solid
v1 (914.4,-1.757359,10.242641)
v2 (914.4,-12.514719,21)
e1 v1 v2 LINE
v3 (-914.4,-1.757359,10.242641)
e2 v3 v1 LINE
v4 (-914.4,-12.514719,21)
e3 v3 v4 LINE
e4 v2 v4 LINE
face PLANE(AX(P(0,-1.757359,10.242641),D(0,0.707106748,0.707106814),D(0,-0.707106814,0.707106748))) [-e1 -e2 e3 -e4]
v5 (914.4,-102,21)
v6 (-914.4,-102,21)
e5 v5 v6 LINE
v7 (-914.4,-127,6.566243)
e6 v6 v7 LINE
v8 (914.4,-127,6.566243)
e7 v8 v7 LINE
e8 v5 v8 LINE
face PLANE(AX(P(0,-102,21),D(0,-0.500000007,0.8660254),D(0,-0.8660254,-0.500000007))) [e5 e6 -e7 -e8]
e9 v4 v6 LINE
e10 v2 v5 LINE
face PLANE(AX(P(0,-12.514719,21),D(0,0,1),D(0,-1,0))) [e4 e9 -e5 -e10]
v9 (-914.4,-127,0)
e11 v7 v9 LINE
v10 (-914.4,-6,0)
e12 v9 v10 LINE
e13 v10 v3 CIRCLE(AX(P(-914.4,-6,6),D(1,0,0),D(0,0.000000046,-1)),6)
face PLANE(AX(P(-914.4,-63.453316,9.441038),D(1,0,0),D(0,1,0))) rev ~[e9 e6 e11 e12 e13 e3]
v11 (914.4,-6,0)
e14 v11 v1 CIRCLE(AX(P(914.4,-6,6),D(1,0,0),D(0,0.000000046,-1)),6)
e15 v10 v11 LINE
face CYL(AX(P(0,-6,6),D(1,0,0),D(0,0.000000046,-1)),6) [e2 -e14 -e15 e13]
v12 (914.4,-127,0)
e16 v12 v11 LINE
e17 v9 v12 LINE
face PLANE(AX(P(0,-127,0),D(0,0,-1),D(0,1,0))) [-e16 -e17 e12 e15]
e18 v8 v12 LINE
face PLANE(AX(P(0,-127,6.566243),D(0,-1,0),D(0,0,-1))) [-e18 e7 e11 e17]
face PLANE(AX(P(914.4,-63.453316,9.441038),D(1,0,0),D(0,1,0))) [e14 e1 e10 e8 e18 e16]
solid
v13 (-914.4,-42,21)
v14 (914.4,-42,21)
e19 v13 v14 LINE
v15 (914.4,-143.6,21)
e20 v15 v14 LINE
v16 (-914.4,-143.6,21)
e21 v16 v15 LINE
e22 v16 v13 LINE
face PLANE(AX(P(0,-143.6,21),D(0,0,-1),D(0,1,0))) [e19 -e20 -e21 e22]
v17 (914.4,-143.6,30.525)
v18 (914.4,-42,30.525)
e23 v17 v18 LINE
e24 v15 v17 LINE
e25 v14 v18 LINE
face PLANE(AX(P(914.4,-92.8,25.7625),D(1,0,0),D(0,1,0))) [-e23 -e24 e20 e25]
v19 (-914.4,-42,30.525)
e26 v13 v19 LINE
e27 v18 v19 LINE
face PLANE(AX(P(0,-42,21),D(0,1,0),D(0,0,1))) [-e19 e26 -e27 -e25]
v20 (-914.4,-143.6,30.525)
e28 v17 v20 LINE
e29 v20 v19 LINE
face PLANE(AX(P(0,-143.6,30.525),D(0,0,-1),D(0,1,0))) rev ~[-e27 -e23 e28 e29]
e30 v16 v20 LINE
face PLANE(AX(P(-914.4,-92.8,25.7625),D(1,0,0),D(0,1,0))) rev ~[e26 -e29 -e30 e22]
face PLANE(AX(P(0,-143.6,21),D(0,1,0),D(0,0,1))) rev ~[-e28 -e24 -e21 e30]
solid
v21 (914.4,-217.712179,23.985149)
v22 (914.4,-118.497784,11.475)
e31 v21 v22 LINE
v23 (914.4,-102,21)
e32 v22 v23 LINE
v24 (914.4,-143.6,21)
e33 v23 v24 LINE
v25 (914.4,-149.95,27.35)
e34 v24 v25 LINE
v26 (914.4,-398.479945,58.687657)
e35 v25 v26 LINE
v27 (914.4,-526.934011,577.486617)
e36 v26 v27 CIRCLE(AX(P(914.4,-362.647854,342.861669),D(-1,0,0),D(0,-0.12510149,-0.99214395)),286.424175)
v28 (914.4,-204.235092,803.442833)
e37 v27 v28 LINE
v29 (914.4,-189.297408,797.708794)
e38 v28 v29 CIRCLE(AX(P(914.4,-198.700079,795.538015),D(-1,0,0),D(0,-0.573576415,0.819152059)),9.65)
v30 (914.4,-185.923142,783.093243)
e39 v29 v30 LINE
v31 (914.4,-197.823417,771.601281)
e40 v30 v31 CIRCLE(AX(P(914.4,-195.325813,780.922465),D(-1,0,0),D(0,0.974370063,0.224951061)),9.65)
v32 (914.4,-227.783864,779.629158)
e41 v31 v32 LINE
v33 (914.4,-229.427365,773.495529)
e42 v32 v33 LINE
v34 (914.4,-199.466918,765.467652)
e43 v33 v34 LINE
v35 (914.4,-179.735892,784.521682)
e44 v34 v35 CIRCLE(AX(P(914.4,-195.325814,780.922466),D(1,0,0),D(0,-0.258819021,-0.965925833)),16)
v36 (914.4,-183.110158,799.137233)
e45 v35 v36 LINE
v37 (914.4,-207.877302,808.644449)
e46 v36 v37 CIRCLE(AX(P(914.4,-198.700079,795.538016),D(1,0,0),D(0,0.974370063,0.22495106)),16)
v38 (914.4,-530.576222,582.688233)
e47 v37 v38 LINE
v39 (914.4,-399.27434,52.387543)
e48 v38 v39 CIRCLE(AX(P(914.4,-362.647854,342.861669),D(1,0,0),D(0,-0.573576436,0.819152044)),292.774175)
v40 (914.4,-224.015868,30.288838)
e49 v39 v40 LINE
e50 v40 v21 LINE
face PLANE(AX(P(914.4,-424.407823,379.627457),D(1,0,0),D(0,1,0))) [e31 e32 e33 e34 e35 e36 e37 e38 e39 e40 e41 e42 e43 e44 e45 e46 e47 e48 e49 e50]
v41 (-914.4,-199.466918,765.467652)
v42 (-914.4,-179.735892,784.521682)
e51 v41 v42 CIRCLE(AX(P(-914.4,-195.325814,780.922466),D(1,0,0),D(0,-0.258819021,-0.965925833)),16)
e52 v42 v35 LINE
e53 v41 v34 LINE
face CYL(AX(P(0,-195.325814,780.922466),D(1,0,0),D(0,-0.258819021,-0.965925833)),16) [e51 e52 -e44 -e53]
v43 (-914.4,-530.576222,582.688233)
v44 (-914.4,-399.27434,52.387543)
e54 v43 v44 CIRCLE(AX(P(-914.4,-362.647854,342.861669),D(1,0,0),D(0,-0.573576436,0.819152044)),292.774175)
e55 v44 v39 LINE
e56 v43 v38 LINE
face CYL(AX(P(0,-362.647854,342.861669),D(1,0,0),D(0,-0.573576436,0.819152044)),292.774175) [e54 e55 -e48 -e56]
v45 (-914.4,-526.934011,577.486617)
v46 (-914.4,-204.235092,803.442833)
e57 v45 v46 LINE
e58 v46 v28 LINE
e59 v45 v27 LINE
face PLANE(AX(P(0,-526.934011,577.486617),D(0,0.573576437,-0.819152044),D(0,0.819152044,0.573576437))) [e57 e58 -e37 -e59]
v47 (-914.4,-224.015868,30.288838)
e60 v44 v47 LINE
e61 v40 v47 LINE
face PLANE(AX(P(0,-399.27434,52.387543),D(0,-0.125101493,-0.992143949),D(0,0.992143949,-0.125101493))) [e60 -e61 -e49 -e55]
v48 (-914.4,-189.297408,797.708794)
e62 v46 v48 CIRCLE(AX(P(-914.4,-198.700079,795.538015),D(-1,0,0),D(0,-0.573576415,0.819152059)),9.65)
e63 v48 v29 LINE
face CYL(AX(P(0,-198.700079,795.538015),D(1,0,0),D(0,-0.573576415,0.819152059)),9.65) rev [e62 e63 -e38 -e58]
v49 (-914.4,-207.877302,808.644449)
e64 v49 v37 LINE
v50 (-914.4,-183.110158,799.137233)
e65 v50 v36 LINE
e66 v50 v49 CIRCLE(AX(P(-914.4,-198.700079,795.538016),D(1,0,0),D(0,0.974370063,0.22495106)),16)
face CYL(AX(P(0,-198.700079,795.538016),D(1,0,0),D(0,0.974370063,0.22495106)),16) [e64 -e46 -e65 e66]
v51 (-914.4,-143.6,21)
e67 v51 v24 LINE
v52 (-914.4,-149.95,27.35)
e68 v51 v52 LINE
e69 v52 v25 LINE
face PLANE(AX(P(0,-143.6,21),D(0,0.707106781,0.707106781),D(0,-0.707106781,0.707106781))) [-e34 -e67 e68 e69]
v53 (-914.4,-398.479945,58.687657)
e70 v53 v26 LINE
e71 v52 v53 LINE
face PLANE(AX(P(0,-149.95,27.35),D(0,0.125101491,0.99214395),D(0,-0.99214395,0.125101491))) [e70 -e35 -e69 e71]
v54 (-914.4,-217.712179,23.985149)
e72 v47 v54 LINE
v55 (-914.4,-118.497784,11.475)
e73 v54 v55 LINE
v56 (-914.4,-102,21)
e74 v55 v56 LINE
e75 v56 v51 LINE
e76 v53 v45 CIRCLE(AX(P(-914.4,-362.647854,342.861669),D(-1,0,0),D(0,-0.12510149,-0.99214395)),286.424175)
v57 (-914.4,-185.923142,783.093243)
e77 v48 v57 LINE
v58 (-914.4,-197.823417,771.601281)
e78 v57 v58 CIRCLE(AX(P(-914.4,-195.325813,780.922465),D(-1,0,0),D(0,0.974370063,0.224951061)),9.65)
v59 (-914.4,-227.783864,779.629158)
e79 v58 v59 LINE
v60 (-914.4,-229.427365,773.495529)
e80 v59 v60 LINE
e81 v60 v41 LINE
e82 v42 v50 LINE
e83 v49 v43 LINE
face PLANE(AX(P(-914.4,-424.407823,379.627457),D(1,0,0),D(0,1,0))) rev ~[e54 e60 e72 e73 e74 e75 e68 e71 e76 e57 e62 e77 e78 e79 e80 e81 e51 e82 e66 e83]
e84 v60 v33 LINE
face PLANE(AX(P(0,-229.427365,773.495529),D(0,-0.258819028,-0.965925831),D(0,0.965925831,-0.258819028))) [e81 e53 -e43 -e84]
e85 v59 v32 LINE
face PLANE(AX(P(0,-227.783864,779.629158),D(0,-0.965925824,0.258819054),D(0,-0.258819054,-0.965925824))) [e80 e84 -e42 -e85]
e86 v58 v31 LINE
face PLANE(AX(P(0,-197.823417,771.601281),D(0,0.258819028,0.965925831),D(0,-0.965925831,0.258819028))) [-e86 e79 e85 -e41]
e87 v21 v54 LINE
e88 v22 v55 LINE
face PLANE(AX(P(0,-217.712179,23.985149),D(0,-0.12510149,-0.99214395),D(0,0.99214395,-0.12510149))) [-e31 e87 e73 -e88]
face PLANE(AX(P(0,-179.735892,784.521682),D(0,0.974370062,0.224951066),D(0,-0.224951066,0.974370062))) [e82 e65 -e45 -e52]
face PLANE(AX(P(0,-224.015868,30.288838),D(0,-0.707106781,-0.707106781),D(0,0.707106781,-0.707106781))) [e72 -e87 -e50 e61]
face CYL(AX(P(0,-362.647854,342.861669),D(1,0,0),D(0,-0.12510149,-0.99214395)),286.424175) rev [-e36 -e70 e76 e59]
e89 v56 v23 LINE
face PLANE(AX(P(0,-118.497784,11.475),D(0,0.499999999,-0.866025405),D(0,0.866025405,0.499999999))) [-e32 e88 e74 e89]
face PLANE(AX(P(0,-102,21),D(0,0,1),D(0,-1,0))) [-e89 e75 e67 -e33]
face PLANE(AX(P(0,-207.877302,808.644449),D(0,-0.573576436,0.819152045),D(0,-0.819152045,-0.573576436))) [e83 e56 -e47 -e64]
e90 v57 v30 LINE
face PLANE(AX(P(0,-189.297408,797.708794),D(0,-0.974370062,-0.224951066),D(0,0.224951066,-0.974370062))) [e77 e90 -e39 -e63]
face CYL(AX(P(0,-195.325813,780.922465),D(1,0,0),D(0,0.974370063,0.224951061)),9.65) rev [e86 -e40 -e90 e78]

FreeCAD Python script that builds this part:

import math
import FreeCAD as App
import Part
import Sketcher
Q = App.Units.Quantity

doc = App.newDocument("Part")
params = doc.addObject("Spreadsheet::Sheet", "Params")
for row, (alias, value) in enumerate([
    ("sketch1_radius", "6 mm"),
    ("sketch1_width", "121 mm"),
    ("pad1_length", "1828.8 mm"),
    ("sketch2_width", "101.6 mm"),
    ("pad2_length", "1828.8 mm"),
    ("sketch3_radius", "16 mm"),
    ("sketch3_radius2", "9.65 mm"),
    ("sketch3_length", "15 mm"),
    ("sketch3_length2", "100 mm"),
    ("sketch3_width", "41.6 mm"),
    ("pad3_length", "1828.8 mm"),
], start=1):
    params.set(f"A{row}", alias)
    params.set(f"B{row}", "=" + value)
    params.setAlias(f"B{row}", alias)

body = doc.addObject("PartDesign::Body", "Body")

# Sketch on YZ plane
sketch1 = body.newObject("Sketcher::SketchObject", "Sketch")
sketch1.AttachmentSupport = (doc.getObject("YZ_Plane"), [""])
sketch1.MapMode = "FlatFace"
sketch1.addGeometry(Part.LineSegment(App.Vector(-127, 7, 0), App.Vector(-127, 0, 0)), False)
sketch1.addGeometry(Part.LineSegment(App.Vector(-127, 0, 0), App.Vector(-6, 0, 0)), False)
sketch1.addGeometry(Part.ArcOfCircle(Part.Circle(App.Vector(-6, 6, 0), App.Vector(0, 0, 1), 6), math.radians(-90), math.radians(45)), False)
sketch1.addGeometry(Part.LineSegment(App.Vector(-2, 10, 0), App.Vector(-13, 21, 0)), False)
sketch1.addGeometry(Part.LineSegment(App.Vector(-13, 21, 0), App.Vector(-102, 21, 0)), False)
sketch1.addGeometry(Part.LineSegment(App.Vector(-102, 21, 0), App.Vector(-127, 7, 0)), False)
sketch1.addConstraint(Sketcher.Constraint("Coincident", 0, 2, 1, 1))
sketch1.addConstraint(Sketcher.Constraint("Tangent", 1, 2, 2, 1))
sketch1.addConstraint(Sketcher.Constraint("Tangent", 2, 2, 3, 1))
sketch1.addConstraint(Sketcher.Constraint("Coincident", 3, 2, 4, 1))
sketch1.addConstraint(Sketcher.Constraint("Coincident", 4, 2, 5, 1))
sketch1.addConstraint(Sketcher.Constraint("Coincident", 5, 2, 0, 1))
sketch1.addConstraint(Sketcher.Constraint("Vertical", 0))
sketch1.addConstraint(Sketcher.Constraint("Horizontal", 1))
sketch1.addConstraint(Sketcher.Constraint("Horizontal", 4))
sketch1.addConstraint(Sketcher.Constraint("PointOnObject", 0, 2, -1))
sketch1.addConstraint(Sketcher.Constraint("Radius", 2, Q("6 mm")))
sketch1.addConstraint(Sketcher.Constraint("DistanceX", 1, 1, 1, 2, Q("121 mm")))
sketch1.addConstraint(Sketcher.Constraint("Angle", 3, Q("135.000003 deg")))
sketch1.addConstraint(Sketcher.Constraint("Angle", 5, Q("-150 deg")))
sketch1.addConstraint(Sketcher.Constraint("DistanceX", 2, 3, -1, 1, Q("6 mm")))
sketch1.addConstraint(Sketcher.Constraint("DistanceY", -1, 1, 3, 2, Q("21 mm")))
sketch1.addConstraint(Sketcher.Constraint("DistanceX", 4, 2, -1, 1, Q("102 mm")))
sketch1.setExpression("Constraints[10]", "Params.sketch1_radius")
sketch1.setExpression("Constraints[11]", "Params.sketch1_width")
pad1 = body.newObject("PartDesign::Pad", "Pad")
pad1.Profile = sketch1
pad1.setExpression("Length", "Params.pad1_length")
pad1.Midplane = True
body2 = doc.addObject("PartDesign::Body", "Body001")

# Sketch on YZ plane
sketch2 = body2.newObject("Sketcher::SketchObject", "Sketch001")
sketch2.AttachmentSupport = (doc.getObject("YZ_Plane001"), [""])
sketch2.MapMode = "FlatFace"
sketch2.addGeometry(Part.LineSegment(App.Vector(-144, 31, 0), App.Vector(-144, 21, 0)), False)
sketch2.addGeometry(Part.LineSegment(App.Vector(-144, 21, 0), App.Vector(-42, 21, 0)), False)
sketch2.addGeometry(Part.LineSegment(App.Vector(-42, 21, 0), App.Vector(-42, 31, 0)), False)
sketch2.addGeometry(Part.LineSegment(App.Vector(-42, 31, 0), App.Vector(-144, 31, 0)), False)
sketch2.addConstraint(Sketcher.Constraint("Coincident", 0, 2, 1, 1))
sketch2.addConstraint(Sketcher.Constraint("Coincident", 1, 2, 2, 1))
sketch2.addConstraint(Sketcher.Constraint("Coincident", 2, 2, 3, 1))
sketch2.addConstraint(Sketcher.Constraint("Coincident", 3, 2, 0, 1))
sketch2.addConstraint(Sketcher.Constraint("Vertical", 0))
sketch2.addConstraint(Sketcher.Constraint("Horizontal", 1))
sketch2.addConstraint(Sketcher.Constraint("Vertical", 2))
sketch2.addConstraint(Sketcher.Constraint("Horizontal", 3))
sketch2.addConstraint(Sketcher.Constraint("DistanceX", 1, 1, 1, 2, Q("101.6 mm")))
sketch2.addConstraint(Sketcher.Constraint("DistanceY", -1, 1, 0, 2, Q("21 mm")))
sketch2.addConstraint(Sketcher.Constraint("DistanceX", 1, 2, -1, 1, Q("42 mm")))
sketch2.addConstraint(Sketcher.Constraint("DistanceY", 0, 2, 0, 1, Q("9.525 mm")))
sketch2.setExpression("Constraints[8]", "Params.sketch2_width")
pad2 = body2.newObject("PartDesign::Pad", "Pad001")
pad2.Profile = sketch2
pad2.setExpression("Length", "Params.pad2_length")
pad2.Midplane = True
body3 = doc.addObject("PartDesign::Body", "Body002")

# Sketch on YZ plane
sketch3 = body3.newObject("Sketcher::SketchObject", "Sketch002")
sketch3.AttachmentSupport = (doc.getObject("YZ_Plane002"), [""])
sketch3.MapMode = "FlatFace"
sketch3.addGeometry(Part.LineSegment(App.Vector(-118, 11, 0), App.Vector(-102, 21, 0)), False)
sketch3.addGeometry(Part.LineSegment(App.Vector(-102, 21, 0), App.Vector(-144, 21, 0)), False)
sketch3.addGeometry(Part.LineSegment(App.Vector(-144, 21, 0), App.Vector(-150, 27, 0)), False)
sketch3.addGeometry(Part.LineSegment(App.Vector(-150, 27, 0), App.Vector(-398, 59, 0)), False)
sketch3.addGeometry(Part.ArcOfCircle(Part.Circle(App.Vector(-363, 343, 0), App.Vector(0, 0, 1), 286), math.radians(125), math.radians(263)), False)
sketch3.addGeometry(Part.LineSegment(App.Vector(-527, 577, 0), App.Vector(-204, 803, 0)), False)
sketch3.addGeometry(Part.ArcOfCircle(Part.Circle(App.Vector(-199, 796, 0), App.Vector(0, 0, 1), 10), math.radians(13), math.radians(125)), False)
sketch3.addGeometry(Part.LineSegment(App.Vector(-189, 798, 0), App.Vector(-186, 783, 0)), False)
sketch3.addGeometry(Part.ArcOfCircle(Part.Circle(App.Vector(-195, 781, 0), App.Vector(0, 0, 1), 10), math.radians(-105), math.radians(13)), False)
sketch3.addGeometry(Part.LineSegment(App.Vector(-198, 772, 0), App.Vector(-228, 780, 0)), False)
sketch3.addGeometry(Part.LineSegment(App.Vector(-228, 780, 0), App.Vector(-229, 773, 0)), False)
sketch3.addGeometry(Part.LineSegment(App.Vector(-229, 773, 0), App.Vector(-199, 765, 0)), False)
sketch3.addGeometry(Part.ArcOfCircle(Part.Circle(App.Vector(-195, 781, 0), App.Vector(0, 0, 1), 16), math.radians(-105), math.radians(13)), False)
sketch3.addGeometry(Part.LineSegment(App.Vector(-180, 785, 0), App.Vector(-183, 799, 0)), False)
sketch3.addGeometry(Part.ArcOfCircle(Part.Circle(App.Vector(-199, 796, 0), App.Vector(0, 0, 1), 16), math.radians(13), math.radians(125)), False)
sketch3.addGeometry(Part.LineSegment(App.Vector(-208, 809, 0), App.Vector(-531, 583, 0)), False)
sketch3.addGeometry(Part.ArcOfCircle(Part.Circle(App.Vector(-363, 343, 0), App.Vector(0, 0, 1), 293), math.radians(125), math.radians(263)), False)
sketch3.addGeometry(Part.LineSegment(App.Vector(-399, 52, 0), App.Vector(-224, 30, 0)), False)
sketch3.addGeometry(Part.LineSegment(App.Vector(-224, 30, 0), App.Vector(-218, 24, 0)), False)
sketch3.addGeometry(Part.LineSegment(App.Vector(-218, 24, 0), App.Vector(-118, 11, 0)), False)
sketch3.addConstraint(Sketcher.Constraint("Coincident", 0, 2, 1, 1))
sketch3.addConstraint(Sketcher.Constraint("Coincident", 1, 2, 2, 1))
sketch3.addConstraint(Sketcher.Constraint("Coincident", 2, 2, 3, 1))
sketch3.addConstraint(Sketcher.Constraint("Tangent", 3, 2, 4, 2))
sketch3.addConstraint(Sketcher.Constraint("Tangent", 4, 1, 5, 1))
sketch3.addConstraint(Sketcher.Constraint("Tangent", 5, 2, 6, 2))
sketch3.addConstraint(Sketcher.Constraint("Tangent", 6, 1, 7, 1))
sketch3.addConstraint(Sketcher.Constraint("Tangent", 7, 2, 8, 2))
sketch3.addConstraint(Sketcher.Constraint("Tangent", 8, 1, 9, 1))
sketch3.addConstraint(Sketcher.Constraint("Coincident", 9, 2, 10, 1))
sketch3.addConstraint(Sketcher.Constraint("Coincident", 10, 2, 11, 1))
sketch3.addConstraint(Sketcher.Constraint("Tangent", 11, 2, 12, 1))
sketch3.addConstraint(Sketcher.Constraint("Tangent", 12, 2, 13, 1))
sketch3.addConstraint(Sketcher.Constraint("Tangent", 13, 2, 14, 1))
sketch3.addConstraint(Sketcher.Constraint("Tangent", 14, 2, 15, 1))
sketch3.addConstraint(Sketcher.Constraint("Tangent", 15, 2, 16, 1))
sketch3.addConstraint(Sketcher.Constraint("Tangent", 16, 2, 17, 1))
sketch3.addConstraint(Sketcher.Constraint("Coincident", 17, 2, 18, 1))
sketch3.addConstraint(Sketcher.Constraint("Coincident", 18, 2, 19, 1))
sketch3.addConstraint(Sketcher.Constraint("Coincident", 19, 2, 0, 1))
sketch3.addConstraint(Sketcher.Constraint("Horizontal", 1))
sketch3.addConstraint(Sketcher.Constraint("Coincident", 12, 3, 8, 3))
sketch3.addConstraint(Sketcher.Constraint("Coincident", 14, 3, 6, 3))
sketch3.addConstraint(Sketcher.Constraint("Coincident", 16, 3, 4, 3))
sketch3.addConstraint(Sketcher.Constraint("Equal", 6, 8))
sketch3.addConstraint(Sketcher.Constraint("Equal", 12, 14))
sketch3.addConstraint(Sketcher.Constraint("Perpendicular", 9, 10))
sketch3.addConstraint(Sketcher.Constraint("Perpendicular", 10, 11))
sketch3.addConstraint(Sketcher.Constraint("Parallel", 5, 15))
sketch3.addConstraint(Sketcher.Constraint("Parallel", 3, 17))
sketch3.addConstraint(Sketcher.Constraint("Parallel", 2, 18))
sketch3.addConstraint(Sketcher.Constraint("Parallel", 17, 19))
sketch3.addConstraint(Sketcher.Constraint("Radius", 12, Q("16 mm")))
sketch3.addConstraint(Sketcher.Constraint("Angle", 0, Q("30 deg")))
sketch3.addConstraint(Sketcher.Constraint("Angle", 2, Q("135 deg")))
sketch3.addConstraint(Sketcher.Constraint("Angle", 5, Q("35 deg")))
sketch3.addConstraint(Sketcher.Constraint("Angle", 7, Q("-76.999999 deg")))
sketch3.addConstraint(Sketcher.Constraint("Angle", 9, Q("165.000001 deg")))
sketch3.addConstraint(Sketcher.Constraint("Radius", 6, Q("9.65 mm")))
sketch3.addConstraint(Sketcher.Constraint("Distance", 7, Q("15 mm")))
sketch3.addConstraint(Sketcher.Constraint("Distance", 19, Q("100 mm")))
sketch3.addConstraint(Sketcher.Constraint("DistanceX", 1, 2, 1, 1, Q("41.6 mm")))
sketch3.addConstraint(Sketcher.Constraint("DistanceX", 0, 2, -1, 1, Q("102 mm")))
sketch3.addConstraint(Sketcher.Constraint("DistanceY", -1, 1, 0, 2, Q("21 mm")))
sketch3.addConstraint(Sketcher.Constraint("Distance", 0, Q("19.05 mm")))
sketch3.addConstraint(Sketcher.Constraint("DistanceX", 2, 2, -1, 1, Q("149.95 mm")))
sketch3.addConstraint(Sketcher.Constraint("Radius", 4, Q("286.424175 mm")))
sketch3.addConstraint(Sketcher.Constraint("Distance", 3, Q("250.497869 mm")))
sketch3.addConstraint(Sketcher.Constraint("Distance", 5, Q("393.94264 mm")))
sketch3.addConstraint(Sketcher.Constraint("DistanceY", -1, 1, 4, 3, Q("342.861669 mm")))
sketch3.addConstraint(Sketcher.Constraint("DistanceY", -1, 1, 9, 2, Q("779.629158 mm")))
sketch3.setExpression("Constraints[32]", "Params.sketch3_radius")
sketch3.setExpression("Constraints[38]", "Params.sketch3_radius2")
sketch3.setExpression("Constraints[39]", "Params.sketch3_length")
sketch3.setExpression("Constraints[40]", "Params.sketch3_length2")
sketch3.setExpression("Constraints[41]", "Params.sketch3_width")
pad3 = body3.newObject("PartDesign::Pad", "Pad002")
pad3.Profile = sketch3
pad3.setExpression("Length", "Params.pad3_length")
pad3.Midplane = True

doc.recompute()
